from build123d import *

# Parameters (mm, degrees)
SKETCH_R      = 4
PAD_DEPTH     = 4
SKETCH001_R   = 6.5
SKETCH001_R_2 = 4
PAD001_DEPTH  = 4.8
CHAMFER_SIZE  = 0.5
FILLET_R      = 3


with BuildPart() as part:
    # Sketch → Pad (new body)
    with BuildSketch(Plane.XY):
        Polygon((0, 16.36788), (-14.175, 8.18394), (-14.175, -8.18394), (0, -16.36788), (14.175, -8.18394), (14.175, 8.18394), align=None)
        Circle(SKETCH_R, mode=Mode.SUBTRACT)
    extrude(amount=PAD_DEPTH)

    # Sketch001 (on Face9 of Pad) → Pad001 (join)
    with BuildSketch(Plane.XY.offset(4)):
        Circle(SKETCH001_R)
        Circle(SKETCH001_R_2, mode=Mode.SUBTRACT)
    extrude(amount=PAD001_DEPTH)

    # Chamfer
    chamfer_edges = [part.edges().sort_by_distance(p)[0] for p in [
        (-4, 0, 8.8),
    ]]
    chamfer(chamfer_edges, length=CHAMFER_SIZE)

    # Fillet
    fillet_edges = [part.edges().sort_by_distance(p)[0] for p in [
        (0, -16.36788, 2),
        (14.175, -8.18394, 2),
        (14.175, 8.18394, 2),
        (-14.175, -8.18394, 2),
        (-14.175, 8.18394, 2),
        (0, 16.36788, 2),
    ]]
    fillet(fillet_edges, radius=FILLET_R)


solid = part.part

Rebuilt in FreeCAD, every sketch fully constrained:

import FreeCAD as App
import Part
import Sketcher
Q = App.Units.Quantity


def edges_at(feature, points):
    """Names of the edges that pass closest to the given points."""
    edges = feature.Shape.Edges
    near = lambda p: min(range(len(edges)), key=lambda i: edges[i].distToShape(Part.Vertex(*p))[0])
    return sorted({f"Edge{near(p) + 1}" for p in points})


def add_polygon(sketch, points):
    """Adds a closed chain of lines whose ends are joined by coincident constraints."""
    first, n = sketch.GeometryCount, len(points)
    for a, b in zip(points, points[1:] + points[:1]):
        sketch.addGeometry(Part.LineSegment(App.Vector(*a, 0), App.Vector(*b, 0)), False)
    for i in range(n):
        sketch.addConstraint(Sketcher.Constraint("Coincident", first + i, 2, first + (i + 1) % n, 1))

doc = App.newDocument("Part")
body = doc.addObject("PartDesign::Body", "Body")

sketch1 = doc.addObject("Sketcher::SketchObject", "Sketch")
body.addObject(sketch1)
sketch1.AttachmentSupport = (doc.XY_Plane, [""])
sketch1.MapMode = "FlatFace"
add_polygon(sketch1, [(0, 16.4), (-14.2, 8.2), (-14.2, -8.2), (0, -16.4), (14.2, -8.2), (14.2, 8.2)])
sketch1.addGeometry(Part.Circle(App.Vector(0, 0, 0), App.Vector(0, 0, 1), 4), False)
sketch1.addConstraint([
    Sketcher.Constraint("Vertical", 1),
    Sketcher.Constraint("Vertical", 4),
    Sketcher.Constraint("Coincident", 6, 3, -1, 1),
    Sketcher.Constraint("Symmetric", 0, 2, 3, 2, -1, 1),
    Sketcher.Constraint("Symmetric", 2, 2, 5, 2, -1, 1),
    Sketcher.Constraint("PointOnObject", 2, 2, -2),
    Sketcher.Constraint("Parallel", 2, 5),
    Sketcher.Constraint("Horizontal", 1, 2, 3, 2),
    Sketcher.Constraint("Diameter", 6, Q("8 mm")),
    Sketcher.Constraint("Angle", 0, Q("-150 deg")),
    Sketcher.Constraint("DistanceX", 1, 2, 3, 2, Q("28.35 mm")),
    Sketcher.Constraint("DistanceY", 1, 2, 1, 1, Q("16.36788 mm")),
])
pad1 = doc.addObject("PartDesign::Pad", "Pad")
body.addObject(pad1)
pad1.Profile = sketch1
pad1.Length = 4

sketch2 = doc.addObject("Sketcher::SketchObject", "Sketch001")
body.addObject(sketch2)
sketch2.AttachmentSupport = (doc.XY_Plane, [""])
sketch2.MapMode = "FlatFace"
sketch2.AttachmentOffset = App.Placement(App.Vector(0, 0, 4), App.Rotation())
sketch2.addGeometry([
    Part.Circle(App.Vector(0, 0, 0), App.Vector(0, 0, 1), 6.5),
    Part.Circle(App.Vector(0, 0, 0), App.Vector(0, 0, 1), 4),
], False)
sketch2.addConstraint([
    Sketcher.Constraint("Coincident", 0, 3, -1, 1),
    Sketcher.Constraint("Coincident", 1, 3, -1, 1),
    Sketcher.Constraint("Diameter", 0, Q("13 mm")),
    Sketcher.Constraint("Diameter", 1, Q("8 mm")),
])
pad2 = doc.addObject("PartDesign::Pad", "Pad001")
body.addObject(pad2)
pad2.Profile = sketch2
pad2.Length = 4.8
doc.recompute()

chamfer = doc.addObject("PartDesign::Chamfer", "Chamfer")
body.addObject(chamfer)
chamfer.Base = (pad2, edges_at(pad2, [(-4, 0, 8.8)]))
chamfer.Size = 0.5
doc.recompute()

fillet = doc.addObject("PartDesign::Fillet", "Fillet")
body.addObject(fillet)
fillet.Base = (chamfer, edges_at(chamfer, [
    (0, -16.368, 2),
    (14.175, -8.184, 2),
    (14.175, 8.184, 2),
    (-14.175, -8.184, 2),
    (-14.175, 8.184, 2),
    (0, 16.368, 2),
]))
fillet.Radius = 3

doc.recompute()
